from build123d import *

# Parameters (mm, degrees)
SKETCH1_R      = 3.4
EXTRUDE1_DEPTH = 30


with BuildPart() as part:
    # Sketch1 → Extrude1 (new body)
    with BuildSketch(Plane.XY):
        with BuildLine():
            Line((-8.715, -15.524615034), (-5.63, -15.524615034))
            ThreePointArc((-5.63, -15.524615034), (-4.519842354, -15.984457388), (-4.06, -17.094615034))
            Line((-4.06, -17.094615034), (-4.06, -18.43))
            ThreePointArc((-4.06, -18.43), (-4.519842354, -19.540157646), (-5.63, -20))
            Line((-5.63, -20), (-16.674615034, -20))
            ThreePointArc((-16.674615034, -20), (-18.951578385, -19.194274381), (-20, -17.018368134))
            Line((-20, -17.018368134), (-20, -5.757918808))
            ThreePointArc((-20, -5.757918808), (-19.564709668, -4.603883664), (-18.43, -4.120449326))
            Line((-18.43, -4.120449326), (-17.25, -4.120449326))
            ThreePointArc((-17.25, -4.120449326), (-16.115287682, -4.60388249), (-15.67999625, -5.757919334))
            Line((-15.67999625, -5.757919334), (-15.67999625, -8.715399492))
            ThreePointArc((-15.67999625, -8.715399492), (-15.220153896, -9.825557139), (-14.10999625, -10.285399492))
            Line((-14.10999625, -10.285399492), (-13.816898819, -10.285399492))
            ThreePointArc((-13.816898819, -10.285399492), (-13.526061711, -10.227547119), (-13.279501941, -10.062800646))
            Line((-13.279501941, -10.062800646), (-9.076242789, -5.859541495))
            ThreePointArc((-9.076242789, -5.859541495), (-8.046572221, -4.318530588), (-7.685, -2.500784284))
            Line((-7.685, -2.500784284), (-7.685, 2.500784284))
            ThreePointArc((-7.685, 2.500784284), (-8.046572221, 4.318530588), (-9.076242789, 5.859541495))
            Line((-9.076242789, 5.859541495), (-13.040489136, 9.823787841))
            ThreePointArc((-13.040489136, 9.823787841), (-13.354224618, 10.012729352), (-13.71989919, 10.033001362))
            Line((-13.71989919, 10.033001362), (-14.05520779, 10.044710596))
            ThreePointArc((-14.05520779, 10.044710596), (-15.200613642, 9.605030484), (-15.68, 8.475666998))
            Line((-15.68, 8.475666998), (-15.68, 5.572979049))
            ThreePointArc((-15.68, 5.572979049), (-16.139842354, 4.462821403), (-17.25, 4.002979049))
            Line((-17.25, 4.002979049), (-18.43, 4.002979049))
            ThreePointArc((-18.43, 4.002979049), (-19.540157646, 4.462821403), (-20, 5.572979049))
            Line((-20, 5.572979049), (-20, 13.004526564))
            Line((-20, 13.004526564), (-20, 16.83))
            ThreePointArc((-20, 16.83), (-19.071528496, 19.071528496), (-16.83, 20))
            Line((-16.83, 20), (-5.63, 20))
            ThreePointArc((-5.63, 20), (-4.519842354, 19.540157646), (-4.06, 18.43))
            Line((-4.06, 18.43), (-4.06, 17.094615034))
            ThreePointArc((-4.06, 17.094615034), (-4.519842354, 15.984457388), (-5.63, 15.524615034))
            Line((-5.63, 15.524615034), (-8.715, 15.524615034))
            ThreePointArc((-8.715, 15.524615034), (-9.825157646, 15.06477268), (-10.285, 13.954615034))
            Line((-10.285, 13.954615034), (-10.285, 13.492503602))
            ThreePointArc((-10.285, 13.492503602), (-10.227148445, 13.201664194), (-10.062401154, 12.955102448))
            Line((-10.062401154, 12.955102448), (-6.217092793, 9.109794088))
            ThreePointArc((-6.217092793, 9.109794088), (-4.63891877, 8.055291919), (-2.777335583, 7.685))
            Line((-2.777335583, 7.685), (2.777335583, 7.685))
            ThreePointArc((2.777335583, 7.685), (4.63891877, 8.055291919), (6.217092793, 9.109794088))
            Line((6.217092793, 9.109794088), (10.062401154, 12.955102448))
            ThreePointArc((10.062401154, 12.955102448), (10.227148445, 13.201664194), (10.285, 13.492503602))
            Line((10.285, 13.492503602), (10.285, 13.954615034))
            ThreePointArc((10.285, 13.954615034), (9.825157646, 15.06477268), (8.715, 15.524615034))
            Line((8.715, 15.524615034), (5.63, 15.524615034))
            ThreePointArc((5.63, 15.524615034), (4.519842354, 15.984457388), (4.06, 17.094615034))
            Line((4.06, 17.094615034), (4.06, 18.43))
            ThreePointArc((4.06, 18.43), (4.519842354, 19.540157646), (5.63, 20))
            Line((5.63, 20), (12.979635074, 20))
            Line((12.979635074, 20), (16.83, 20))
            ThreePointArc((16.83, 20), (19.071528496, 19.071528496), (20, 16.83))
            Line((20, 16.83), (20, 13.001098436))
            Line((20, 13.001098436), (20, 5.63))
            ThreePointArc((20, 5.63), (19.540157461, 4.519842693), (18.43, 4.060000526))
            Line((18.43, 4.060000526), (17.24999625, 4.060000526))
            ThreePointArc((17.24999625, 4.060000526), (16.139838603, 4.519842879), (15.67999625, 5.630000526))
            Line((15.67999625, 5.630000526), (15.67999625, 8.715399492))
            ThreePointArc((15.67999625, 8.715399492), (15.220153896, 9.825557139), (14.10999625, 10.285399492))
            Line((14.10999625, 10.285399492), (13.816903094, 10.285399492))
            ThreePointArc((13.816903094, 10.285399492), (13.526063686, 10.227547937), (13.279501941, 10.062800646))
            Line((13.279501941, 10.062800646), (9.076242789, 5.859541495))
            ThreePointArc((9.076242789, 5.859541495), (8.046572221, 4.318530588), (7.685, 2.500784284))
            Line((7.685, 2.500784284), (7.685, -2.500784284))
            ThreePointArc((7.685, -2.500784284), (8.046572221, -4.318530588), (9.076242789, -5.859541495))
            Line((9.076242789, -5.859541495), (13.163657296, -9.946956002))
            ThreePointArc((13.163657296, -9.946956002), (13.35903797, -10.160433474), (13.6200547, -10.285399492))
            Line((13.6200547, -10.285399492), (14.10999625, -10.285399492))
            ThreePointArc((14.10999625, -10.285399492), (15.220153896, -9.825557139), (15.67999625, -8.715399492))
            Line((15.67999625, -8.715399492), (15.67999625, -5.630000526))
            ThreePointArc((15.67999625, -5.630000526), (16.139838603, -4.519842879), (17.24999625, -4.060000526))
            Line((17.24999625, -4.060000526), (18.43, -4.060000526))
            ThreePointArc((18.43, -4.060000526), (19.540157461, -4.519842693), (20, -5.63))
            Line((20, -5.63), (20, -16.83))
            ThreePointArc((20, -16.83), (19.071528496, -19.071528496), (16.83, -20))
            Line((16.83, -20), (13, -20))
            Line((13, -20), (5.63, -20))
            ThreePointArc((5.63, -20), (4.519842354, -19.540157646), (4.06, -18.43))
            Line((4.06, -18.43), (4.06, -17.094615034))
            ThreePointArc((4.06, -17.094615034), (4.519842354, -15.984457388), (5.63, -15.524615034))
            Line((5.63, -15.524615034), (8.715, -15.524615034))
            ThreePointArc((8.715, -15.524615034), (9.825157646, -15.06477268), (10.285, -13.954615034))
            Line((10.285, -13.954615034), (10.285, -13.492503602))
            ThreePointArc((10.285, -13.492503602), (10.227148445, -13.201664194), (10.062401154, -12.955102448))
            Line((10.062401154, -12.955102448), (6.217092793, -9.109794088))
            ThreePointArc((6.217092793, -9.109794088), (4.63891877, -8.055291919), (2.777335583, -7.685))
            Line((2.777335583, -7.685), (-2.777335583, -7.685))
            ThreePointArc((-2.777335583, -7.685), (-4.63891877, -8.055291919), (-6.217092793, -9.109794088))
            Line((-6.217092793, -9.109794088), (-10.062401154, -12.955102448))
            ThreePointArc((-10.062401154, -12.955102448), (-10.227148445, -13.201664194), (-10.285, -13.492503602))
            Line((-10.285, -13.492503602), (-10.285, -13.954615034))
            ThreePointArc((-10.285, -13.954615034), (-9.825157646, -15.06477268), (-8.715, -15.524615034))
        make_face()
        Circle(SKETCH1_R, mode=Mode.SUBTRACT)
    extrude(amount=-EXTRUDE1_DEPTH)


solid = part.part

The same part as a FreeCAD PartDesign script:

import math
import FreeCAD as App
import Part
import Sketcher

V = App.Vector
Q = App.Units.Quantity

doc = App.newDocument("Part")
body = doc.addObject("PartDesign::Body", "Body")

sketch1 = body.newObject("Sketcher::SketchObject", "Sketch")
sketch1.AttachmentSupport = (doc.getObject("XY_Plane"), [""])
sketch1.MapMode = "FlatFace"
sketch1.addGeometry([
    Part.LineSegment(V(-5.63, -15.52, 0), V(-8.71, -15.52, 0)),
    Part.ArcOfCircle(Part.Circle(V(-8.71, -13.95, 0), V(0, 0, 1), 1.57), math.radians(-180), math.radians(-90)),
    Part.LineSegment(V(-10.29, -13.95, 0), V(-10.29, -13.49, 0)),
    Part.ArcOfCircle(Part.Circle(V(-9.52, -13.49, 0), V(0, 0, 1), 0.76), math.radians(135), math.radians(180)),
    Part.LineSegment(V(-10.06, -12.96, 0), V(-6.22, -9.11, 0)),
    Part.ArcOfCircle(Part.Circle(V(-2.78, -12.55, 0), V(0, 0, 1), 4.86), math.radians(90), math.radians(135)),
    Part.LineSegment(V(-2.78, -7.68, 0), V(2.78, -7.68, 0)),
    Part.ArcOfCircle(Part.Circle(V(2.78, -12.55, 0), V(0, 0, 1), 4.86), math.radians(45), math.radians(90)),
    Part.LineSegment(V(6.22, -9.11, 0), V(10.06, -12.96, 0)),
    Part.ArcOfCircle(Part.Circle(V(9.52, -13.49, 0), V(0, 0, 1), 0.76), math.radians(0), math.radians(45)),
    Part.LineSegment(V(10.29, -13.49, 0), V(10.29, -13.95, 0)),
    Part.ArcOfCircle(Part.Circle(V(8.71, -13.95, 0), V(0, 0, 1), 1.57), math.radians(-90), math.radians(0)),
    Part.LineSegment(V(8.71, -15.52, 0), V(5.63, -15.52, 0)),
    Part.ArcOfCircle(Part.Circle(V(5.63, -17.09, 0), V(0, 0, 1), 1.57), math.radians(90), math.radians(180)),
    Part.LineSegment(V(4.06, -17.09, 0), V(4.06, -18.43, 0)),
    Part.ArcOfCircle(Part.Circle(V(5.63, -18.43, 0), V(0, 0, 1), 1.57), math.radians(-180), math.radians(-90)),
    Part.LineSegment(V(5.63, -20, 0), V(16.83, -20, 0)),
    Part.ArcOfCircle(Part.Circle(V(16.83, -16.83, 0), V(0, 0, 1), 3.17), math.radians(-90), math.radians(0)),
    Part.LineSegment(V(20, -16.83, 0), V(20, -5.63, 0)),
    Part.ArcOfCircle(Part.Circle(V(18.43, -5.63, 0), V(0, 0, 1), 1.57), math.radians(0), math.radians(90)),
    Part.LineSegment(V(18.43, -4.06, 0), V(17.25, -4.06, 0)),
    Part.ArcOfCircle(Part.Circle(V(17.25, -5.63, 0), V(0, 0, 1), 1.57), math.radians(90), math.radians(180)),
    Part.LineSegment(V(15.68, -5.63, 0), V(15.68, -8.72, 0)),
    Part.ArcOfCircle(Part.Circle(V(14.11, -8.72, 0), V(0, 0, 1), 1.57), math.radians(-90), math.radians(0)),
    Part.LineSegment(V(14.11, -10.29, 0), V(13.62, -10.29, 0)),
    Part.ArcOfCircle(Part.Circle(V(13.81, -9.55, 0), V(0, 0, 1), 0.76), math.radians(-149), math.radians(-105)),
    Part.LineSegment(V(13.16, -9.95, 0), V(9.08, -5.86, 0)),
    Part.ArcOfCircle(Part.Circle(V(12.44, -2.5, 0), V(0, 0, 1), 4.75), math.radians(-180), math.radians(-135)),
    Part.LineSegment(V(7.68, -2.5, 0), V(7.68, 2.5, 0)),
    Part.ArcOfCircle(Part.Circle(V(12.44, 2.5, 0), V(0, 0, 1), 4.75), math.radians(135), math.radians(180)),
    Part.LineSegment(V(9.08, 5.86, 0), V(13.28, 10.06, 0)),
    Part.ArcOfCircle(Part.Circle(V(13.82, 9.53, 0), V(0, 0, 1), 0.76), math.radians(90), math.radians(135)),
    Part.LineSegment(V(13.82, 10.29, 0), V(14.11, 10.29, 0)),
    Part.ArcOfCircle(Part.Circle(V(14.11, 8.72, 0), V(0, 0, 1), 1.57), math.radians(0), math.radians(90)),
    Part.LineSegment(V(15.68, 8.72, 0), V(15.68, 5.63, 0)),
    Part.ArcOfCircle(Part.Circle(V(17.25, 5.63, 0), V(0, 0, 1), 1.57), math.radians(180), math.radians(270)),
    Part.LineSegment(V(17.25, 4.06, 0), V(18.43, 4.06, 0)),
    Part.ArcOfCircle(Part.Circle(V(18.43, 5.63, 0), V(0, 0, 1), 1.57), math.radians(-90), math.radians(0)),
    Part.LineSegment(V(20, 5.63, 0), V(20, 16.83, 0)),
    Part.ArcOfCircle(Part.Circle(V(16.83, 16.83, 0), V(0, 0, 1), 3.17), math.radians(0), math.radians(90)),
    Part.LineSegment(V(16.83, 20, 0), V(5.63, 20, 0)),
    Part.ArcOfCircle(Part.Circle(V(5.63, 18.43, 0), V(0, 0, 1), 1.57), math.radians(90), math.radians(180)),
    Part.LineSegment(V(4.06, 18.43, 0), V(4.06, 17.09, 0)),
    Part.ArcOfCircle(Part.Circle(V(5.63, 17.09, 0), V(0, 0, 1), 1.57), math.radians(-180), math.radians(-90)),
    Part.LineSegment(V(5.63, 15.52, 0), V(8.71, 15.52, 0)),
    Part.ArcOfCircle(Part.Circle(V(8.71, 13.95, 0), V(0, 0, 1), 1.57), math.radians(0), math.radians(90)),
    Part.LineSegment(V(10.29, 13.95, 0), V(10.29, 13.49, 0)),
    Part.ArcOfCircle(Part.Circle(V(9.52, 13.49, 0), V(0, 0, 1), 0.76), math.radians(-45), math.radians(0)),
    Part.LineSegment(V(10.06, 12.96, 0), V(6.22, 9.11, 0)),
    Part.ArcOfCircle(Part.Circle(V(2.78, 12.55, 0), V(0, 0, 1), 4.86), math.radians(-90), math.radians(-45)),
    Part.LineSegment(V(2.78, 7.68, 0), V(-2.78, 7.68, 0)),
    Part.ArcOfCircle(Part.Circle(V(-2.78, 12.55, 0), V(0, 0, 1), 4.86), math.radians(-135), math.radians(-90)),
    Part.LineSegment(V(-6.22, 9.11, 0), V(-10.06, 12.96, 0)),
    Part.ArcOfCircle(Part.Circle(V(-9.52, 13.49, 0), V(0, 0, 1), 0.76), math.radians(180), math.radians(225)),
    Part.LineSegment(V(-10.29, 13.49, 0), V(-10.29, 13.95, 0)),
    Part.ArcOfCircle(Part.Circle(V(-8.71, 13.95, 0), V(0, 0, 1), 1.57), math.radians(90), math.radians(180)),
    Part.LineSegment(V(-8.71, 15.52, 0), V(-5.63, 15.52, 0)),
    Part.ArcOfCircle(Part.Circle(V(-5.63, 17.09, 0), V(0, 0, 1), 1.57), math.radians(-90), math.radians(0)),
    Part.LineSegment(V(-4.06, 17.09, 0), V(-4.06, 18.43, 0)),
    Part.ArcOfCircle(Part.Circle(V(-5.63, 18.43, 0), V(0, 0, 1), 1.57), math.radians(0), math.radians(90)),
    Part.LineSegment(V(-5.63, 20, 0), V(-16.83, 20, 0)),
    Part.ArcOfCircle(Part.Circle(V(-16.83, 16.83, 0), V(0, 0, 1), 3.17), math.radians(90), math.radians(180)),
    Part.LineSegment(V(-20, 16.83, 0), V(-20, 5.57, 0)),
    Part.ArcOfCircle(Part.Circle(V(-18.43, 5.57, 0), V(0, 0, 1), 1.57), math.radians(-180), math.radians(-90)),
    Part.LineSegment(V(-18.43, 4, 0), V(-17.25, 4, 0)),
    Part.ArcOfCircle(Part.Circle(V(-17.25, 5.57, 0), V(0, 0, 1), 1.57), math.radians(-90), math.radians(0)),
    Part.LineSegment(V(-15.68, 5.57, 0), V(-15.68, 8.48, 0)),
    Part.ArcOfCircle(Part.Circle(V(-14.11, 8.48, 0), V(0, 0, 1), 1.57), math.radians(88), math.radians(180)),
    Part.LineSegment(V(-14.06, 10.04, 0), V(-13.72, 10.03, 0)),
    Part.ArcOfCircle(Part.Circle(V(-13.58, 9.29, 0), V(0, 0, 1), 0.76), math.radians(45), math.radians(101)),
    Part.LineSegment(V(-13.04, 9.82, 0), V(-9.08, 5.86, 0)),
    Part.ArcOfCircle(Part.Circle(V(-12.44, 2.5, 0), V(0, 0, 1), 4.75), math.radians(0), math.radians(45)),
    Part.LineSegment(V(-7.68, 2.5, 0), V(-7.68, -2.5, 0)),
    Part.ArcOfCircle(Part.Circle(V(-12.44, -2.5, 0), V(0, 0, 1), 4.75), math.radians(-45), math.radians(0)),
    Part.LineSegment(V(-9.08, -5.86, 0), V(-13.28, -10.06, 0)),
    Part.ArcOfCircle(Part.Circle(V(-13.82, -9.53, 0), V(0, 0, 1), 0.76), math.radians(-90), math.radians(-45)),
    Part.LineSegment(V(-13.82, -10.29, 0), V(-14.11, -10.29, 0)),
    Part.ArcOfCircle(Part.Circle(V(-14.11, -8.72, 0), V(0, 0, 1), 1.57), math.radians(180), math.radians(270)),
    Part.LineSegment(V(-15.68, -8.72, 0), V(-15.68, -5.76, 0)),
    Part.ArcOfCircle(Part.Circle(V(-17.25, -5.69, 0), V(0, 0, 1), 1.57), math.radians(-2), math.radians(90)),
    Part.LineSegment(V(-17.25, -4.12, 0), V(-18.43, -4.12, 0)),
    Part.ArcOfCircle(Part.Circle(V(-18.43, -5.69, 0), V(0, 0, 1), 1.57), math.radians(90), math.radians(182)),
    Part.LineSegment(V(-20, -5.76, 0), V(-20, -17.02, 0)),
    Part.ArcOfCircle(Part.Circle(V(-16.84, -16.83, 0), V(0, 0, 1), 3.17), math.radians(-177), math.radians(-87)),
    Part.LineSegment(V(-16.67, -20, 0), V(-5.63, -20, 0)),
    Part.ArcOfCircle(Part.Circle(V(-5.63, -18.43, 0), V(0, 0, 1), 1.57), math.radians(-90), math.radians(0)),
    Part.LineSegment(V(-4.06, -18.43, 0), V(-4.06, -17.09, 0)),
    Part.ArcOfCircle(Part.Circle(V(-5.63, -17.09, 0), V(0, 0, 1), 1.57), math.radians(0), math.radians(90)),
    Part.Circle(V(0, 0, 0), V(0, 0, 1), 3.4),
], False)
sketch1.addConstraint([
    Sketcher.Constraint("Tangent", 0, 2, 1, 2),
    Sketcher.Constraint("Tangent", 1, 1, 2, 1),
    Sketcher.Constraint("Tangent", 2, 2, 3, 2),
    Sketcher.Constraint("Tangent", 3, 1, 4, 1),
    Sketcher.Constraint("Tangent", 4, 2, 5, 2),
    Sketcher.Constraint("Tangent", 5, 1, 6, 1),
    Sketcher.Constraint("Tangent", 6, 2, 7, 2),
    Sketcher.Constraint("Tangent", 7, 1, 8, 1),
    Sketcher.Constraint("Tangent", 8, 2, 9, 2),
    Sketcher.Constraint("Tangent", 9, 1, 10, 1),
    Sketcher.Constraint("Tangent", 10, 2, 11, 2),
    Sketcher.Constraint("Tangent", 11, 1, 12, 1),
    Sketcher.Constraint("Tangent", 12, 2, 13, 1),
    Sketcher.Constraint("Tangent", 13, 2, 14, 1),
    Sketcher.Constraint("Tangent", 14, 2, 15, 1),
    Sketcher.Constraint("Tangent", 15, 2, 16, 1),
    Sketcher.Constraint("Tangent", 16, 2, 17, 1),
    Sketcher.Constraint("Tangent", 17, 2, 18, 1),
    Sketcher.Constraint("Tangent", 18, 2, 19, 1),
    Sketcher.Constraint("Tangent", 19, 2, 20, 1),
    Sketcher.Constraint("Tangent", 20, 2, 21, 1),
    Sketcher.Constraint("Tangent", 21, 2, 22, 1),
    Sketcher.Constraint("Tangent", 22, 2, 23, 2),
    Sketcher.Constraint("Tangent", 23, 1, 24, 1),
    Sketcher.Constraint("Coincident", 24, 2, 25, 2),
    Sketcher.Constraint("Coincident", 25, 1, 26, 1),
    Sketcher.Constraint("Tangent", 26, 2, 27, 2),
    Sketcher.Constraint("Tangent", 27, 1, 28, 1),
    Sketcher.Constraint("Tangent", 28, 2, 29, 2),
    Sketcher.Constraint("Tangent", 29, 1, 30, 1),
    Sketcher.Constraint("Tangent", 30, 2, 31, 2),
    Sketcher.Constraint("Tangent", 31, 1, 32, 1),
    Sketcher.Constraint("Tangent", 32, 2, 33, 2),
    Sketcher.Constraint("Tangent", 33, 1, 34, 1),
    Sketcher.Constraint("Tangent", 34, 2, 35, 1),
    Sketcher.Constraint("Tangent", 35, 2, 36, 1),
    Sketcher.Constraint("Tangent", 36, 2, 37, 1),
    Sketcher.Constraint("Tangent", 37, 2, 38, 1),
    Sketcher.Constraint("Tangent", 38, 2, 39, 1),
    Sketcher.Constraint("Tangent", 39, 2, 40, 1),
    Sketcher.Constraint("Tangent", 40, 2, 41, 1),
    Sketcher.Constraint("Tangent", 41, 2, 42, 1),
    Sketcher.Constraint("Tangent", 42, 2, 43, 1),
    Sketcher.Constraint("Tangent", 43, 2, 44, 1),
    Sketcher.Constraint("Tangent", 44, 2, 45, 2),
    Sketcher.Constraint("Tangent", 45, 1, 46, 1),
    Sketcher.Constraint("Tangent", 46, 2, 47, 2),
    Sketcher.Constraint("Tangent", 47, 1, 48, 1),
    Sketcher.Constraint("Tangent", 48, 2, 49, 2),
    Sketcher.Constraint("Tangent", 49, 1, 50, 1),
    Sketcher.Constraint("Tangent", 50, 2, 51, 2),
    Sketcher.Constraint("Tangent", 51, 1, 52, 1),
    Sketcher.Constraint("Tangent", 52, 2, 53, 2),
    Sketcher.Constraint("Tangent", 53, 1, 54, 1),
    Sketcher.Constraint("Tangent", 54, 2, 55, 2),
    Sketcher.Constraint("Tangent", 55, 1, 56, 1),
    Sketcher.Constraint("Tangent", 56, 2, 57, 1),
    Sketcher.Constraint("Tangent", 57, 2, 58, 1),
    Sketcher.Constraint("Tangent", 58, 2, 59, 1),
    Sketcher.Constraint("Tangent", 59, 2, 60, 1),
    Sketcher.Constraint("Tangent", 60, 2, 61, 1),
    Sketcher.Constraint("Tangent", 61, 2, 62, 1),
    Sketcher.Constraint("Tangent", 62, 2, 63, 1),
    Sketcher.Constraint("Tangent", 63, 2, 64, 1),
    Sketcher.Constraint("Tangent", 64, 2, 65, 1),
    Sketcher.Constraint("Tangent", 65, 2, 66, 1),
    Sketcher.Constraint("Tangent", 66, 2, 67, 2),
    Sketcher.Constraint("Tangent", 67, 1, 68, 1),
    Sketcher.Constraint("Coincident", 68, 2, 69, 2),
    Sketcher.Constraint("Tangent", 69, 1, 70, 1),
    Sketcher.Constraint("Tangent", 70, 2, 71, 2),
    Sketcher.Constraint("Tangent", 71, 1, 72, 1),
    Sketcher.Constraint("Tangent", 72, 2, 73, 2),
    Sketcher.Constraint("Tangent", 73, 1, 74, 1),
    Sketcher.Constraint("Tangent", 74, 2, 75, 2),
    Sketcher.Constraint("Coincident", 75, 1, 76, 1),
    Sketcher.Constraint("Tangent", 76, 2, 77, 2),
    Sketcher.Constraint("Tangent", 77, 1, 78, 1),
    Sketcher.Constraint("Coincident", 78, 2, 79, 1),
    Sketcher.Constraint("Coincident", 79, 2, 80, 1),
    Sketcher.Constraint("Coincident", 80, 2, 81, 1),
    Sketcher.Constraint("Coincident", 81, 2, 82, 1),
    Sketcher.Constraint("Coincident", 82, 2, 83, 1),
    Sketcher.Constraint("Coincident", 83, 2, 84, 1),
    Sketcher.Constraint("Tangent", 84, 2, 85, 1),
    Sketcher.Constraint("Tangent", 85, 2, 86, 1),
    Sketcher.Constraint("Tangent", 86, 2, 87, 1),
    Sketcher.Constraint("Tangent", 87, 2, 0, 1),
    Sketcher.Constraint("Horizontal", 0),
    Sketcher.Constraint("Vertical", 2),
    Sketcher.Constraint("Horizontal", 6),
    Sketcher.Constraint("Vertical", 10),
    Sketcher.Constraint("Horizontal", 12),
    Sketcher.Constraint("Vertical", 14),
    Sketcher.Constraint("Horizontal", 16),
    Sketcher.Constraint("Vertical", 18),
    Sketcher.Constraint("Horizontal", 20),
    Sketcher.Constraint("Vertical", 22),
    Sketcher.Constraint("Horizontal", 24),
    Sketcher.Constraint("Vertical", 28),
    Sketcher.Constraint("Horizontal", 32),
    Sketcher.Constraint("Vertical", 34),
    Sketcher.Constraint("Horizontal", 36),
    Sketcher.Constraint("Vertical", 38),
    Sketcher.Constraint("Horizontal", 40),
    Sketcher.Constraint("Vertical", 42),
    Sketcher.Constraint("Horizontal", 44),
    Sketcher.Constraint("Vertical", 46),
    Sketcher.Constraint("Horizontal", 50),
    Sketcher.Constraint("Vertical", 54),
    Sketcher.Constraint("Horizontal", 56),
    Sketcher.Constraint("Vertical", 58),
    Sketcher.Constraint("Horizontal", 60),
    Sketcher.Constraint("Vertical", 62),
    Sketcher.Constraint("Horizontal", 64),
    Sketcher.Constraint("Vertical", 66),
    Sketcher.Constraint("Vertical", 72),
    Sketcher.Constraint("Horizontal", 76),
    Sketcher.Constraint("Vertical", 78),
    Sketcher.Constraint("Horizontal", 80),
    Sketcher.Constraint("Vertical", 82),
    Sketcher.Constraint("Horizontal", 84),
    Sketcher.Constraint("Vertical", 86),
    Sketcher.Constraint("Coincident", 88, 3, -1, 1),
    Sketcher.Constraint("Equal", 5, 7),
    Sketcher.Constraint("Equal", 3, 9),
    Sketcher.Constraint("Equal", 1, 11),
    Sketcher.Constraint("Equal", 11, 13),
    Sketcher.Constraint("Equal", 13, 15),
    Sketcher.Constraint("Equal", 15, 19),
    Sketcher.Constraint("Equal", 19, 21),
    Sketcher.Constraint("Equal", 21, 23),
    Sketcher.Constraint("Equal", 9, 25),
    Sketcher.Constraint("Equal", 27, 29),
    Sketcher.Constraint("Equal", 25, 31),
    Sketcher.Constraint("Equal", 23, 33),
    Sketcher.Constraint("Equal", 33, 35),
    Sketcher.Constraint("Equal", 35, 37),
    Sketcher.Constraint("Equal", 17, 39),
    Sketcher.Constraint("Equal", 37, 41),
    Sketcher.Constraint("Equal", 41, 43),
    Sketcher.Constraint("Equal", 43, 45),
    Sketcher.Constraint("Equal", 31, 47),
    Sketcher.Constraint("Equal", 7, 49),
    Sketcher.Constraint("Equal", 49, 51),
    Sketcher.Constraint("Equal", 47, 53),
    Sketcher.Constraint("Equal", 45, 55),
    Sketcher.Constraint("Equal", 55, 57),
    Sketcher.Constraint("Equal", 57, 59),
    Sketcher.Constraint("Equal", 39, 61),
    Sketcher.Constraint("Equal", 59, 63),
    Sketcher.Constraint("Equal", 63, 65),
    Sketcher.Constraint("Equal", 65, 67),
    Sketcher.Constraint("Equal", 53, 69),
    Sketcher.Constraint("Equal", 29, 71),
    Sketcher.Constraint("Equal", 71, 73),
    Sketcher.Constraint("Equal", 69, 75),
    Sketcher.Constraint("Equal", 67, 77),
    Sketcher.Constraint("Equal", 77, 79),
    Sketcher.Constraint("Equal", 79, 81),
    Sketcher.Constraint("Equal", 61, 83),
    Sketcher.Constraint("Equal", 81, 85),
    Sketcher.Constraint("Equal", 85, 87),
    Sketcher.Constraint("Symmetric", 1, 3, 45, 3, -1, 1),
    Sketcher.Constraint("Symmetric", 5, 3, 49, 3, -1, 1),
    Sketcher.Constraint("Symmetric", 9, 3, 53, 3, -1, 1),
    Sketcher.Constraint("Symmetric", 13, 3, 57, 3, -1, 1),
    Sketcher.Constraint("Symmetric", 17, 3, 61, 3, -1, 1),
    Sketcher.Constraint("Symmetric", 27, 3, 71, 3, -1, 1),
    Sketcher.Constraint("Symmetric", 31, 3, 75, 3, -1, 1),
    Sketcher.Constraint("Symmetric", 41, 3, 85, 3, -1, 1),
    Sketcher.Constraint("Symmetric", 3, 3, 9, 3, -2),
    Sketcher.Constraint("Symmetric", 43, 3, 57, 3, -2),
    Sketcher.Constraint("Symmetric", 39, 3, 61, 3, -2),
    Sketcher.Constraint("Symmetric", 23, 3, 77, 3, -2),
    Sketcher.Constraint("Symmetric", 48, 2, 51, 1, -2),
    Sketcher.Constraint("Symmetric", 29, 1, 70, 2, -2),
    Sketcher.Constraint("Symmetric", 26, 2, 73, 1, -2),
    Sketcher.Constraint("Symmetric", 21, 3, 35, 3, -1),
    Sketcher.Constraint("Perpendicular", 4, 8),
    Sketcher.Constraint("Parallel", 8, 26),
    Sketcher.Constraint("Perpendicular", 26, 30),
    Sketcher.Constraint("Horizontal", 78, 2, 81, 2),
    Sketcher.Constraint("Vertical", 64, 2, 79, 2),
    Sketcher.Constraint("Vertical", 63, 2, 80, 2),
    Sketcher.Constraint("Vertical", 62, 2, 81, 2),
    Sketcher.Constraint("Equal", 60, 18),
    Sketcher.Constraint("Diameter", 88, 6.8),
    Sketcher.Constraint("Angle", 68, Q("-2 deg")),
    Sketcher.Constraint("Radius", 1, 1.57),
    Sketcher.Constraint("Radius", 3, 0.76),
    Sketcher.Constraint("Radius", 17, 3.17),
    Sketcher.Constraint("Radius", 27, 4.75),
    Sketcher.Constraint("DistanceX", 16, 1, 16, 2, 11.2),
    Sketcher.Constraint("DistanceY", 15, 2, -1, 1, 20.0),
    Sketcher.Constraint("DistanceX", -1, 1, 17, 2, 20.0),
    Sketcher.Constraint("DistanceX", 64, 1, 64, 2, 1.18),
    Sketcher.Constraint("DistanceX", 0, 2, 0, 1, 3.085),
    Sketcher.Constraint("Radius", 5, 4.864551),
    Sketcher.Constraint("DistanceY", 22, 2, 22, 1, 3.085399),
    Sketcher.Constraint("DistanceX", -1, 1, 27, 3, 12.435),
    Sketcher.Constraint("DistanceY", 5, 1, -1, 1, 7.685),
    Sketcher.Constraint("DistanceY", -1, 1, 68, 2, 10.033001),
    Sketcher.Constraint("DistanceX", 6, 1, 6, 2, 5.554671),
    Sketcher.Constraint("DistanceX", 24, 2, 24, 1, 0.489942),
    Sketcher.Constraint("DistanceY", 2, 1, 2, 2, 0.462111),
    Sketcher.Constraint("DistanceY", 28, 1, 28, 2, 5.001569),
    Sketcher.Constraint("DistanceY", 62, 2, 62, 1, 11.257021),
    Sketcher.Constraint("DistanceY", 78, 1, 78, 2, 2.95748),
    Sketcher.Constraint("DistanceY", 82, 2, 82, 1, 11.260449),
    Sketcher.Constraint("DistanceX", 68, 2, -1, 1, 13.719899),
    Sketcher.Constraint("DistanceX", 75, 1, -1, 1, 13.816899),
    Sketcher.Constraint("DistanceX", 20, 2, 20, 1, 1.180004),
    Sketcher.Constraint("DistanceX", 84, 1, 84, 2, 11.044615),
    Sketcher.Constraint("DistanceX", -1, 1, 25, 3, 13.811732),
    Sketcher.Constraint("DistanceY", 79, 3, -1, 1, 5.690449),
])
pad1 = body.newObject("PartDesign::Pad", "Pad")
pad1.Profile = sketch1
pad1.Length = 30
pad1.Reversed = True

doc.recompute()
